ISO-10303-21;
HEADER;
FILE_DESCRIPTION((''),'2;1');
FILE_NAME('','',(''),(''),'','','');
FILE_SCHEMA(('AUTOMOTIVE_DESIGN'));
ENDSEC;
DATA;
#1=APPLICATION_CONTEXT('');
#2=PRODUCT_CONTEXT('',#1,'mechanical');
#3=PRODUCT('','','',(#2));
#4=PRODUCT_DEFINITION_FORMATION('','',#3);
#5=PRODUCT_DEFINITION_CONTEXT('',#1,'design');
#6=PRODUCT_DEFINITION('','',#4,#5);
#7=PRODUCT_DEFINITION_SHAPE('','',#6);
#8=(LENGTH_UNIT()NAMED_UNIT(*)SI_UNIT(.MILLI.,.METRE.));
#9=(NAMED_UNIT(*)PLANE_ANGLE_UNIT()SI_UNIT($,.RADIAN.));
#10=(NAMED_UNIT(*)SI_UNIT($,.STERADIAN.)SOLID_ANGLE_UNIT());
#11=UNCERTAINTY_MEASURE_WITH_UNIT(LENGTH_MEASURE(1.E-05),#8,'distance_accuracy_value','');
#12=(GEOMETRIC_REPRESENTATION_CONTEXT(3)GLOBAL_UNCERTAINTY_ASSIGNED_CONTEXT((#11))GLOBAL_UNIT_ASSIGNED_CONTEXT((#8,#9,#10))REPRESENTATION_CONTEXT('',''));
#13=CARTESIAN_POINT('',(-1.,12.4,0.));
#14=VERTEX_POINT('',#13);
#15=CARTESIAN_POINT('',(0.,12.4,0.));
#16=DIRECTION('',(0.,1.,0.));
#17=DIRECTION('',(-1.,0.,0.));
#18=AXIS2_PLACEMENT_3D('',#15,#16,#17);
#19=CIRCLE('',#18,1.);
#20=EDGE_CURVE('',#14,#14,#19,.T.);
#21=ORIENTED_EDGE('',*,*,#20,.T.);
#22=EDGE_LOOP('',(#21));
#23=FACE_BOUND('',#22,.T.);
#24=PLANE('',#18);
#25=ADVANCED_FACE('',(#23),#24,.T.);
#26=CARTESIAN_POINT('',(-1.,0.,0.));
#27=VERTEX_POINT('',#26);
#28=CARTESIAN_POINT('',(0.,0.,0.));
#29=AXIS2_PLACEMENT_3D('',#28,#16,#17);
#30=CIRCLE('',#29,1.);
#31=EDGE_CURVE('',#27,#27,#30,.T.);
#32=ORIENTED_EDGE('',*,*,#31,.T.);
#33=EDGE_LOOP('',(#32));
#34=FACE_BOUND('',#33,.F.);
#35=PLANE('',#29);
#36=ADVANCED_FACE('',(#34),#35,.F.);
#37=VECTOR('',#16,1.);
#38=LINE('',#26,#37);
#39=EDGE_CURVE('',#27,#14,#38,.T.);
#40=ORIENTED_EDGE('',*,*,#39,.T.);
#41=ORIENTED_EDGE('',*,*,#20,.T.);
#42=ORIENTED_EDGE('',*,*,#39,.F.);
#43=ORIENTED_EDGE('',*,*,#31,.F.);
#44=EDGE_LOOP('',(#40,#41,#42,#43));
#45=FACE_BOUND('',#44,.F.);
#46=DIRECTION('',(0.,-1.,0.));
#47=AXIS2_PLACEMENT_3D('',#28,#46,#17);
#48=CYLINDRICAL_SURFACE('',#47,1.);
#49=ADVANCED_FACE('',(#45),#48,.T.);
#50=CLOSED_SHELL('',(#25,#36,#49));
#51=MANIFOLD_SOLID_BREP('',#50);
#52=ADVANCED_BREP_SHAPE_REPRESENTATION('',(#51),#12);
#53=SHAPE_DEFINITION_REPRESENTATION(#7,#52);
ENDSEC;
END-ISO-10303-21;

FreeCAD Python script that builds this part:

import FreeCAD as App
import Part
import Sketcher
from FreeCAD import Vector
Q = App.Units.Quantity

doc = App.newDocument("Part")
body = doc.addObject("PartDesign::Body", "Body")

# Sketch on XZ plane
sketch1 = body.newObject("Sketcher::SketchObject", "Sketch")
sketch1.AttachmentSupport = (doc.getObject("XZ_Plane"), [""])
sketch1.MapMode = "FlatFace"
sketch1.addGeometry(Part.Circle(Vector(0, 0, 0), Vector(0, 0, 1), 1), False)
sketch1.addConstraint([
    Sketcher.Constraint("Coincident", 0, 3, -1, 1),
    Sketcher.Constraint("Diameter", 0, Q("2 mm")),
])
pad1 = body.newObject("PartDesign::Pad", "Pad")
pad1.Profile = sketch1
pad1.Length = 12.4
pad1.Reversed = True

doc.recompute()
